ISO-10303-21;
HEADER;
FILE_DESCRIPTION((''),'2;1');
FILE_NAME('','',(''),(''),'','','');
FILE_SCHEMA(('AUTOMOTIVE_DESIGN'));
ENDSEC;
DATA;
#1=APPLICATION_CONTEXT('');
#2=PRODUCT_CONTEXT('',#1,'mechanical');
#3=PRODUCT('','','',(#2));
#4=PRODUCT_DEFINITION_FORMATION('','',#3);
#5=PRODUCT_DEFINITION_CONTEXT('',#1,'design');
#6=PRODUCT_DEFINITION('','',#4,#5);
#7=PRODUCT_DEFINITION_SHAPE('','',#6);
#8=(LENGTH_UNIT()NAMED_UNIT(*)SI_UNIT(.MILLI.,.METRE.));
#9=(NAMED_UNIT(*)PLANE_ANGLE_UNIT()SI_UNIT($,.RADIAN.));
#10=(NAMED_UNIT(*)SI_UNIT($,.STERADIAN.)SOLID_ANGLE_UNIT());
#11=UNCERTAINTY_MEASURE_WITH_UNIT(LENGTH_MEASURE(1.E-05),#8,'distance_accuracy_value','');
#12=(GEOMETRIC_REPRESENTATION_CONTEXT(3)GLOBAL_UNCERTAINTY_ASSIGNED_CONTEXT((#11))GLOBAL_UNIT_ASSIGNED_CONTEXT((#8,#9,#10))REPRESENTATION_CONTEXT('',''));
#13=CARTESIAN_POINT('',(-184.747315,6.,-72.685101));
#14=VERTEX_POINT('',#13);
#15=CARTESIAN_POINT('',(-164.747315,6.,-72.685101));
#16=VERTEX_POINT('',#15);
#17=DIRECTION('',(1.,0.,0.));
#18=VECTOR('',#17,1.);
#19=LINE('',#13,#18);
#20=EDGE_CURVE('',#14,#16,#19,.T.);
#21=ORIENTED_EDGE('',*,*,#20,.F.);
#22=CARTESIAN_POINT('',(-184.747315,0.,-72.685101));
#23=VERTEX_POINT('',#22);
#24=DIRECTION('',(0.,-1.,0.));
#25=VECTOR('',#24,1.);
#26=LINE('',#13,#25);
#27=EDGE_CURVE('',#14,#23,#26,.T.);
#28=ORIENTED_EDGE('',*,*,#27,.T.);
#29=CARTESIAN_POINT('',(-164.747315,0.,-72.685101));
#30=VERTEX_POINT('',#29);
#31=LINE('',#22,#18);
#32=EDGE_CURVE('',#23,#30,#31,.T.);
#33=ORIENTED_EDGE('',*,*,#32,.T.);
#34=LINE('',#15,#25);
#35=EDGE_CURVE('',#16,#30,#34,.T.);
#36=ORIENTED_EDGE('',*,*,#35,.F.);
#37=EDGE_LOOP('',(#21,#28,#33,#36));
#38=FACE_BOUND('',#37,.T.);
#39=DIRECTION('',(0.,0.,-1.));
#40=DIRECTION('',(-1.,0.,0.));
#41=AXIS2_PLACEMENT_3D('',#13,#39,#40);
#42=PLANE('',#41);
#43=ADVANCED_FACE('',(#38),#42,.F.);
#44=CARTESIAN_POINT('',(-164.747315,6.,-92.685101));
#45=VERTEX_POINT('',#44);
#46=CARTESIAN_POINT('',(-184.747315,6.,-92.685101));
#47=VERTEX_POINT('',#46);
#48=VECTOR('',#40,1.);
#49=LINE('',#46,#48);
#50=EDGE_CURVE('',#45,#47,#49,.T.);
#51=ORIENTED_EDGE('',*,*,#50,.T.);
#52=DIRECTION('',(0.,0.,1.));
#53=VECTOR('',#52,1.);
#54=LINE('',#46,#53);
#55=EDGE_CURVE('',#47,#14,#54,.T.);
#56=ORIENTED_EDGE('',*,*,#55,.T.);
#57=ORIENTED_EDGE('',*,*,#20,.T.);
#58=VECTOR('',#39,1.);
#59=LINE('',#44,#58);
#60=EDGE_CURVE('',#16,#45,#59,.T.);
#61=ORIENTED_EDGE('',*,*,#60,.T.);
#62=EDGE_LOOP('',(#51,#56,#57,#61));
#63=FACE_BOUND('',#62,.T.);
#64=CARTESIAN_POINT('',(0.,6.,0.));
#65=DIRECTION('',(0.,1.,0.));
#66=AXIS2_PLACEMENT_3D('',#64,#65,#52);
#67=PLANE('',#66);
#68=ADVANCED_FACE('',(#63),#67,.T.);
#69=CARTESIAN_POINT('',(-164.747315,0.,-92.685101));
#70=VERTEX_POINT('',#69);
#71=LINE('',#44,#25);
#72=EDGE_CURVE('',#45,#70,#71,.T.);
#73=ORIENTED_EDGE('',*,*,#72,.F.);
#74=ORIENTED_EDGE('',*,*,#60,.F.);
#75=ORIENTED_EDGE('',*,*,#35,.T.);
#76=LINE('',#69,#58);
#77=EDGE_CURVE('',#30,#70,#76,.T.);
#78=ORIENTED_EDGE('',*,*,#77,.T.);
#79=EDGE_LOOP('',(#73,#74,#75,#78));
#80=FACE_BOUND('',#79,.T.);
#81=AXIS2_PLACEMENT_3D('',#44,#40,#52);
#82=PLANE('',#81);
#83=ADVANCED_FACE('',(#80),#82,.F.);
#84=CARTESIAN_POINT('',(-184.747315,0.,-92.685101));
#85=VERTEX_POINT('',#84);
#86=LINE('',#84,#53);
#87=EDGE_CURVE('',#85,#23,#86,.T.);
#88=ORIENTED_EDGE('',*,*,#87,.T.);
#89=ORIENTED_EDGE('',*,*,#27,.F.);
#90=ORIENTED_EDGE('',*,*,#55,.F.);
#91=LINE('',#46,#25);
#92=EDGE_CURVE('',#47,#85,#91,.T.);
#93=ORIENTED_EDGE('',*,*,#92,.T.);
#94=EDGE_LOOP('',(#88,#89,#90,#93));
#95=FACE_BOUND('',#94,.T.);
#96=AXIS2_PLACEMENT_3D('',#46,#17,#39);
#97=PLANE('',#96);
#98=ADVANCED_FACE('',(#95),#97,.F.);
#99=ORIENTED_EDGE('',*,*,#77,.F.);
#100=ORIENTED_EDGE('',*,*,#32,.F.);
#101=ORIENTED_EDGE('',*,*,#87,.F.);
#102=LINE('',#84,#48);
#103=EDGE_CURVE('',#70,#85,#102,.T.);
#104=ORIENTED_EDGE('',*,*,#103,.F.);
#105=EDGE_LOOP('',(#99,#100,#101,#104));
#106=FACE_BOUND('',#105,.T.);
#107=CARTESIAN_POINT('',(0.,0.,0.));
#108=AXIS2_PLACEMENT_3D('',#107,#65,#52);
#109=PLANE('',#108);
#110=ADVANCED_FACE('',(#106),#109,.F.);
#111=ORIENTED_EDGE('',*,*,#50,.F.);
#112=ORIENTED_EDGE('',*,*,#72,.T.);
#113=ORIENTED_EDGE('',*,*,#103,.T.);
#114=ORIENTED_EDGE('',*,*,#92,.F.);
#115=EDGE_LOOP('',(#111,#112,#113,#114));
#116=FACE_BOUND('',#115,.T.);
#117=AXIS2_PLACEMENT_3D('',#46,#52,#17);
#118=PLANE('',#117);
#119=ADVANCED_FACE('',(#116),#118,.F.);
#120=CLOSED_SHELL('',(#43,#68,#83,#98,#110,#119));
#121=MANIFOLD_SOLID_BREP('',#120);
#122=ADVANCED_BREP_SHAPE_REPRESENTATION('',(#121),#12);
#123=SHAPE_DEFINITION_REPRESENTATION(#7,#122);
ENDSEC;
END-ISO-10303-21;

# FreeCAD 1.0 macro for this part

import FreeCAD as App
import Part
import Sketcher
Q = App.Units.Quantity

doc = App.newDocument("Part")
body = doc.addObject("PartDesign::Body", "Body")

# Sketch on XZ plane
sketch1 = doc.addObject("Sketcher::SketchObject", "Sketch")
body.addObject(sketch1)
sketch1.AttachmentSupport = (doc.XZ_Plane, [""])
sketch1.MapMode = "FlatFace"
sketch1.addGeometry(Part.LineSegment(App.Vector(-185, -93, 0), App.Vector(-185, -73, 0)), False)
sketch1.addGeometry(Part.LineSegment(App.Vector(-185, -73, 0), App.Vector(-165, -73, 0)), False)
sketch1.addGeometry(Part.LineSegment(App.Vector(-165, -73, 0), App.Vector(-165, -93, 0)), False)
sketch1.addGeometry(Part.LineSegment(App.Vector(-165, -93, 0), App.Vector(-185, -93, 0)), False)
sketch1.addConstraint(Sketcher.Constraint("Coincident", 0, 2, 1, 1))
sketch1.addConstraint(Sketcher.Constraint("Coincident", 1, 2, 2, 1))
sketch1.addConstraint(Sketcher.Constraint("Coincident", 2, 2, 3, 1))
sketch1.addConstraint(Sketcher.Constraint("Coincident", 3, 2, 0, 1))
sketch1.addConstraint(Sketcher.Constraint("Vertical", 0))
sketch1.addConstraint(Sketcher.Constraint("Horizontal", 1))
sketch1.addConstraint(Sketcher.Constraint("Vertical", 2))
sketch1.addConstraint(Sketcher.Constraint("Horizontal", 3))
sketch1.addConstraint(Sketcher.Constraint("Equal", 3, 0))
sketch1.addConstraint(Sketcher.Constraint("DistanceX", 1, 1, 1, 2, Q("20 mm")))
sketch1.addConstraint(Sketcher.Constraint("DistanceY", 0, 2, -1, 1, Q("72.685101 mm")))
sketch1.addConstraint(Sketcher.Constraint("DistanceX", 0, 2, -1, 1, Q("184.747315 mm")))
pad1 = doc.addObject("PartDesign::Pad", "Pad")
body.addObject(pad1)
pad1.Profile = sketch1
pad1.Length = 6
pad1.Reversed = True

doc.recompute()
